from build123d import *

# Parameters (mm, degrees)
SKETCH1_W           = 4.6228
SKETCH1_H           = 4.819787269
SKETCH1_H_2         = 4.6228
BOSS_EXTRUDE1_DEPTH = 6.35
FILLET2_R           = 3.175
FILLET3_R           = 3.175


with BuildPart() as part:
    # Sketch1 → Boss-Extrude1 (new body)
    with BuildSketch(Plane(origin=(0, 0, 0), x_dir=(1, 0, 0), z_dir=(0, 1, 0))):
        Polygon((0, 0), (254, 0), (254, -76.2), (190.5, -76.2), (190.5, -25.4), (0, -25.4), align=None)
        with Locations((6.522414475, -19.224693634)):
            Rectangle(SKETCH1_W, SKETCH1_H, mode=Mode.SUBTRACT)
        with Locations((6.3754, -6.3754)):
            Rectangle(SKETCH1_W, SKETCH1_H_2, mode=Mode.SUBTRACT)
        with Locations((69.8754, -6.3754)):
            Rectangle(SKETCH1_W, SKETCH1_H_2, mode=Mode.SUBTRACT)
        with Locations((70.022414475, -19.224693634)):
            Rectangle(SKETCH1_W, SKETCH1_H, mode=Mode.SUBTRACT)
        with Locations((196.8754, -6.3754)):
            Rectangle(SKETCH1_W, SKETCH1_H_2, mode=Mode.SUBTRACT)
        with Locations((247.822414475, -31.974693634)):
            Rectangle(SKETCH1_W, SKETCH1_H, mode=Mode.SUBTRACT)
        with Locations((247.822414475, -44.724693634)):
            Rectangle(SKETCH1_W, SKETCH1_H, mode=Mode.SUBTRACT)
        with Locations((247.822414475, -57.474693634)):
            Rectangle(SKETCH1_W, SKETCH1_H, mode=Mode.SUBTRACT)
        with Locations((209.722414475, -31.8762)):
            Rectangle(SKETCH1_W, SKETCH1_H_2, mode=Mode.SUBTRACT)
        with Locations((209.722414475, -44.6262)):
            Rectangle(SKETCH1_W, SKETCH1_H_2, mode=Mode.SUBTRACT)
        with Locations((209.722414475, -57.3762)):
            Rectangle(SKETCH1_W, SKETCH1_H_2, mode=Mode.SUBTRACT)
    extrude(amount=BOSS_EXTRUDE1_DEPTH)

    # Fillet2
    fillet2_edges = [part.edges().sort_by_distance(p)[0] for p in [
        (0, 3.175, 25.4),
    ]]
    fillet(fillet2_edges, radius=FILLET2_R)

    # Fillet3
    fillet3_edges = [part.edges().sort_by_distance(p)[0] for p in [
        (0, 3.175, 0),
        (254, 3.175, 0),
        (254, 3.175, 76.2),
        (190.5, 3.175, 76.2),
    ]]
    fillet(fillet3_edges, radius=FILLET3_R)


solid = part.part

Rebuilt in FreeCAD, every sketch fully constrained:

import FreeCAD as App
import Part
import Sketcher

V = App.Vector
Q = App.Units.Quantity


def edges_at(feature, points):
    """Names of the edges that pass closest to the given points."""
    edges = feature.Shape.Edges
    near = lambda p: min(range(len(edges)), key=lambda i: edges[i].distToShape(Part.Vertex(*p))[0])
    return sorted({f"Edge{near(p) + 1}" for p in points})

doc = App.newDocument("Part")
body = doc.addObject("PartDesign::Body", "Body")

sketch1 = body.newObject("Sketcher::SketchObject", "Sketch")
sketch1.AttachmentSupport = (doc.getObject("XZ_Plane"), [""])
sketch1.MapMode = "FlatFace"
sketch1.addGeometry([
    Part.LineSegment(V(254, 0, 0), V(0, 0, 0)),
    Part.LineSegment(V(0, 0, 0), V(0, 25.4, 0)),
    Part.LineSegment(V(0, 25.4, 0), V(190.5, 25.4, 0)),
    Part.LineSegment(V(190.5, 25.4, 0), V(190.5, 76.2, 0)),
    Part.LineSegment(V(190.5, 76.2, 0), V(254, 76.2, 0)),
    Part.LineSegment(V(254, 76.2, 0), V(254, 0, 0)),
    Part.LineSegment(V(245.5, 59.9, 0), V(245.5, 55.1, 0)),
    Part.LineSegment(V(245.5, 55.1, 0), V(250.1, 55.1, 0)),
    Part.LineSegment(V(250.1, 55.1, 0), V(250.1, 59.9, 0)),
    Part.LineSegment(V(250.1, 59.9, 0), V(245.5, 59.9, 0)),
    Part.LineSegment(V(207.4, 59.7, 0), V(207.4, 55.1, 0)),
    Part.LineSegment(V(207.4, 55.1, 0), V(212, 55.1, 0)),
    Part.LineSegment(V(212, 55.1, 0), V(212, 59.7, 0)),
    Part.LineSegment(V(212, 59.7, 0), V(207.4, 59.7, 0)),
    Part.LineSegment(V(245.5, 47.1, 0), V(245.5, 42.3, 0)),
    Part.LineSegment(V(245.5, 42.3, 0), V(250.1, 42.3, 0)),
    Part.LineSegment(V(250.1, 42.3, 0), V(250.1, 47.1, 0)),
    Part.LineSegment(V(250.1, 47.1, 0), V(245.5, 47.1, 0)),
    Part.LineSegment(V(207.4, 46.9, 0), V(207.4, 42.3, 0)),
    Part.LineSegment(V(207.4, 42.3, 0), V(212, 42.3, 0)),
    Part.LineSegment(V(212, 42.3, 0), V(212, 46.9, 0)),
    Part.LineSegment(V(212, 46.9, 0), V(207.4, 46.9, 0)),
    Part.LineSegment(V(245.5, 34.4, 0), V(245.5, 29.6, 0)),
    Part.LineSegment(V(245.5, 29.6, 0), V(250.1, 29.6, 0)),
    Part.LineSegment(V(250.1, 29.6, 0), V(250.1, 34.4, 0)),
    Part.LineSegment(V(250.1, 34.4, 0), V(245.5, 34.4, 0)),
    Part.LineSegment(V(207.4, 34.2, 0), V(207.4, 29.6, 0)),
    Part.LineSegment(V(207.4, 29.6, 0), V(212, 29.6, 0)),
    Part.LineSegment(V(212, 29.6, 0), V(212, 34.2, 0)),
    Part.LineSegment(V(212, 34.2, 0), V(207.4, 34.2, 0)),
    Part.LineSegment(V(194.6, 8.7, 0), V(194.6, 4.1, 0)),
    Part.LineSegment(V(194.6, 4.1, 0), V(199.2, 4.1, 0)),
    Part.LineSegment(V(199.2, 4.1, 0), V(199.2, 8.7, 0)),
    Part.LineSegment(V(199.2, 8.7, 0), V(194.6, 8.7, 0)),
    Part.LineSegment(V(67.7, 21.6, 0), V(67.7, 16.8, 0)),
    Part.LineSegment(V(67.7, 16.8, 0), V(72.3, 16.8, 0)),
    Part.LineSegment(V(72.3, 16.8, 0), V(72.3, 21.6, 0)),
    Part.LineSegment(V(72.3, 21.6, 0), V(67.7, 21.6, 0)),
    Part.LineSegment(V(4.2, 21.6, 0), V(4.2, 16.8, 0)),
    Part.LineSegment(V(4.2, 16.8, 0), V(8.8, 16.8, 0)),
    Part.LineSegment(V(8.8, 16.8, 0), V(8.8, 21.6, 0)),
    Part.LineSegment(V(8.8, 21.6, 0), V(4.2, 21.6, 0)),
    Part.LineSegment(V(67.6, 8.7, 0), V(67.6, 4.1, 0)),
    Part.LineSegment(V(67.6, 4.1, 0), V(72.2, 4.1, 0)),
    Part.LineSegment(V(72.2, 4.1, 0), V(72.2, 8.7, 0)),
    Part.LineSegment(V(72.2, 8.7, 0), V(67.6, 8.7, 0)),
    Part.LineSegment(V(4.1, 8.7, 0), V(4.1, 4.1, 0)),
    Part.LineSegment(V(4.1, 4.1, 0), V(8.7, 4.1, 0)),
    Part.LineSegment(V(8.7, 4.1, 0), V(8.7, 8.7, 0)),
    Part.LineSegment(V(8.7, 8.7, 0), V(4.1, 8.7, 0)),
], False)
sketch1.addConstraint([
    Sketcher.Constraint("Coincident", 0, 2, 1, 1),
    Sketcher.Constraint("Coincident", 1, 2, 2, 1),
    Sketcher.Constraint("Coincident", 2, 2, 3, 1),
    Sketcher.Constraint("Coincident", 3, 2, 4, 1),
    Sketcher.Constraint("Coincident", 4, 2, 5, 1),
    Sketcher.Constraint("Coincident", 5, 2, 0, 1),
    Sketcher.Constraint("Coincident", 6, 2, 7, 1),
    Sketcher.Constraint("Coincident", 7, 2, 8, 1),
    Sketcher.Constraint("Coincident", 8, 2, 9, 1),
    Sketcher.Constraint("Coincident", 9, 2, 6, 1),
    Sketcher.Constraint("Coincident", 10, 2, 11, 1),
    Sketcher.Constraint("Coincident", 11, 2, 12, 1),
    Sketcher.Constraint("Coincident", 12, 2, 13, 1),
    Sketcher.Constraint("Coincident", 13, 2, 10, 1),
    Sketcher.Constraint("Coincident", 14, 2, 15, 1),
    Sketcher.Constraint("Coincident", 15, 2, 16, 1),
    Sketcher.Constraint("Coincident", 16, 2, 17, 1),
    Sketcher.Constraint("Coincident", 17, 2, 14, 1),
    Sketcher.Constraint("Coincident", 18, 2, 19, 1),
    Sketcher.Constraint("Coincident", 19, 2, 20, 1),
    Sketcher.Constraint("Coincident", 20, 2, 21, 1),
    Sketcher.Constraint("Coincident", 21, 2, 18, 1),
    Sketcher.Constraint("Coincident", 22, 2, 23, 1),
    Sketcher.Constraint("Coincident", 23, 2, 24, 1),
    Sketcher.Constraint("Coincident", 24, 2, 25, 1),
    Sketcher.Constraint("Coincident", 25, 2, 22, 1),
    Sketcher.Constraint("Coincident", 26, 2, 27, 1),
    Sketcher.Constraint("Coincident", 27, 2, 28, 1),
    Sketcher.Constraint("Coincident", 28, 2, 29, 1),
    Sketcher.Constraint("Coincident", 29, 2, 26, 1),
    Sketcher.Constraint("Coincident", 30, 2, 31, 1),
    Sketcher.Constraint("Coincident", 31, 2, 32, 1),
    Sketcher.Constraint("Coincident", 32, 2, 33, 1),
    Sketcher.Constraint("Coincident", 33, 2, 30, 1),
    Sketcher.Constraint("Coincident", 34, 2, 35, 1),
    Sketcher.Constraint("Coincident", 35, 2, 36, 1),
    Sketcher.Constraint("Coincident", 36, 2, 37, 1),
    Sketcher.Constraint("Coincident", 37, 2, 34, 1),
    Sketcher.Constraint("Coincident", 38, 2, 39, 1),
    Sketcher.Constraint("Coincident", 39, 2, 40, 1),
    Sketcher.Constraint("Coincident", 40, 2, 41, 1),
    Sketcher.Constraint("Coincident", 41, 2, 38, 1),
    Sketcher.Constraint("Coincident", 42, 2, 43, 1),
    Sketcher.Constraint("Coincident", 43, 2, 44, 1),
    Sketcher.Constraint("Coincident", 44, 2, 45, 1),
    Sketcher.Constraint("Coincident", 45, 2, 42, 1),
    Sketcher.Constraint("Coincident", 46, 2, 47, 1),
    Sketcher.Constraint("Coincident", 47, 2, 48, 1),
    Sketcher.Constraint("Coincident", 48, 2, 49, 1),
    Sketcher.Constraint("Coincident", 49, 2, 46, 1),
    Sketcher.Constraint("Horizontal", 0),
    Sketcher.Constraint("Vertical", 1),
    Sketcher.Constraint("Horizontal", 2),
    Sketcher.Constraint("Vertical", 3),
    Sketcher.Constraint("Horizontal", 4),
    Sketcher.Constraint("Vertical", 5),
    Sketcher.Constraint("Vertical", 6),
    Sketcher.Constraint("Horizontal", 7),
    Sketcher.Constraint("Vertical", 8),
    Sketcher.Constraint("Horizontal", 9),
    Sketcher.Constraint("Vertical", 10),
    Sketcher.Constraint("Horizontal", 11),
    Sketcher.Constraint("Vertical", 12),
    Sketcher.Constraint("Horizontal", 13),
    Sketcher.Constraint("Vertical", 14),
    Sketcher.Constraint("Horizontal", 15),
    Sketcher.Constraint("Vertical", 16),
    Sketcher.Constraint("Horizontal", 17),
    Sketcher.Constraint("Vertical", 18),
    Sketcher.Constraint("Horizontal", 19),
    Sketcher.Constraint("Vertical", 20),
    Sketcher.Constraint("Horizontal", 21),
    Sketcher.Constraint("Vertical", 22),
    Sketcher.Constraint("Horizontal", 23),
    Sketcher.Constraint("Vertical", 24),
    Sketcher.Constraint("Horizontal", 25),
    Sketcher.Constraint("Vertical", 26),
    Sketcher.Constraint("Horizontal", 27),
    Sketcher.Constraint("Vertical", 28),
    Sketcher.Constraint("Horizontal", 29),
    Sketcher.Constraint("Vertical", 30),
    Sketcher.Constraint("Horizontal", 31),
    Sketcher.Constraint("Vertical", 32),
    Sketcher.Constraint("Horizontal", 33),
    Sketcher.Constraint("Vertical", 34),
    Sketcher.Constraint("Horizontal", 35),
    Sketcher.Constraint("Vertical", 36),
    Sketcher.Constraint("Horizontal", 37),
    Sketcher.Constraint("Vertical", 38),
    Sketcher.Constraint("Horizontal", 39),
    Sketcher.Constraint("Vertical", 40),
    Sketcher.Constraint("Horizontal", 41),
    Sketcher.Constraint("Vertical", 42),
    Sketcher.Constraint("Horizontal", 43),
    Sketcher.Constraint("Vertical", 44),
    Sketcher.Constraint("Horizontal", 45),
    Sketcher.Constraint("Vertical", 46),
    Sketcher.Constraint("Horizontal", 47),
    Sketcher.Constraint("Vertical", 48),
    Sketcher.Constraint("Horizontal", 49),
    Sketcher.Constraint("Coincident", 0, 2, -1, 1),
    Sketcher.Constraint("Horizontal", 7, 2, 10, 2),
    Sketcher.Constraint("Horizontal", 15, 2, 18, 2),
    Sketcher.Constraint("Horizontal", 23, 2, 26, 2),
    Sketcher.Constraint("Horizontal", 35, 2, 38, 2),
    Sketcher.Constraint("Horizontal", 37, 2, 40, 2),
    Sketcher.Constraint("Horizontal", 31, 2, 42, 2),
    Sketcher.Constraint("Horizontal", 33, 2, 44, 2),
    Sketcher.Constraint("Horizontal", 43, 2, 46, 2),
    Sketcher.Constraint("Horizontal", 45, 2, 48, 2),
    Sketcher.Constraint("Vertical", 9, 2, 14, 2),
    Sketcher.Constraint("Vertical", 8, 2, 15, 2),
    Sketcher.Constraint("Vertical", 13, 2, 18, 2),
    Sketcher.Constraint("Vertical", 12, 2, 19, 2),
    Sketcher.Constraint("Vertical", 17, 2, 22, 2),
    Sketcher.Constraint("Vertical", 16, 2, 23, 2),
    Sketcher.Constraint("Vertical", 21, 2, 26, 2),
    Sketcher.Constraint("Vertical", 20, 2, 27, 2),
    Sketcher.Constraint("Equal", 9, 11),
    Sketcher.Constraint("Equal", 29, 31),
    Sketcher.Constraint("Equal", 33, 35),
    Sketcher.Constraint("Equal", 37, 39),
    Sketcher.Constraint("Equal", 41, 43),
    Sketcher.Constraint("Equal", 45, 47),
    Sketcher.Constraint("Equal", 49, 10),
    Sketcher.Constraint("Equal", 8, 14),
    Sketcher.Constraint("Equal", 12, 18),
    Sketcher.Constraint("Equal", 16, 22),
    Sketcher.Constraint("Equal", 20, 26),
    Sketcher.Constraint("Equal", 28, 30),
    Sketcher.Constraint("Equal", 24, 34),
    Sketcher.Constraint("DistanceX", 0, 2, 0, 1, Q("10 in")),
    Sketcher.Constraint("DistanceY", 1, 1, 1, 2, Q("1 in")),
    Sketcher.Constraint("DistanceY", 3, 1, 3, 2, Q("2 in")),
    Sketcher.Constraint("DistanceX", 2, 1, 2, 2, Q("7.5 in")),
    Sketcher.Constraint("DistanceX", 10, 2, 6, 2, Q("1.5 in")),
    Sketcher.Constraint("DistanceX", 38, 2, 34, 2, Q("2.5 in")),
    Sketcher.Constraint("DistanceX", 7, 1, 7, 2, Q("0.182 in")),
    Sketcher.Constraint("DistanceX", -1, 1, 30, 2, Q("7.66 in")),
    Sketcher.Constraint("DistanceY", -1, 1, 30, 2, Q("0.16 in")),
    Sketcher.Constraint("DistanceX", -1, 1, 42, 2, Q("2.66 in")),
    Sketcher.Constraint("DistanceX", -1, 1, 46, 2, Q("0.16 in")),
    Sketcher.Constraint("DistanceY", 33, 2, 34, 2, Q("0.32 in")),
    Sketcher.Constraint("DistanceY", -1, 1, 6, 2, Q("55.0648 mm")),
    Sketcher.Constraint("DistanceY", -1, 1, 14, 2, Q("42.3148 mm")),
    Sketcher.Constraint("DistanceY", -1, 1, 22, 2, Q("29.5648 mm")),
    Sketcher.Constraint("DistanceY", 6, 2, 6, 1, Q("4.819787 mm")),
    Sketcher.Constraint("DistanceX", -1, 1, 6, 2, Q("245.511014 mm")),
    Sketcher.Constraint("DistanceX", -1, 1, 34, 2, Q("67.711014 mm")),
])
pad1 = body.newObject("PartDesign::Pad", "Pad")
pad1.Profile = sketch1
pad1.Length = Q("0.25 in")
pad1.Reversed = True
doc.recompute()

fillet = body.newObject("PartDesign::Fillet", "Fillet")
fillet.Base = (pad1, edges_at(pad1, [(0, 3.175, 25.4)]))
fillet.Radius = Q("0.125 in")
doc.recompute()

fillet2 = body.newObject("PartDesign::Fillet", "Fillet001")
fillet2.Base = (fillet, edges_at(fillet, [
    (0, 3.175, 0),
    (254, 3.175, 0),
    (254, 3.175, 76.2),
    (190.5, 3.175, 76.2),
]))
fillet2.Radius = Q("0.125 in")

doc.recompute()
